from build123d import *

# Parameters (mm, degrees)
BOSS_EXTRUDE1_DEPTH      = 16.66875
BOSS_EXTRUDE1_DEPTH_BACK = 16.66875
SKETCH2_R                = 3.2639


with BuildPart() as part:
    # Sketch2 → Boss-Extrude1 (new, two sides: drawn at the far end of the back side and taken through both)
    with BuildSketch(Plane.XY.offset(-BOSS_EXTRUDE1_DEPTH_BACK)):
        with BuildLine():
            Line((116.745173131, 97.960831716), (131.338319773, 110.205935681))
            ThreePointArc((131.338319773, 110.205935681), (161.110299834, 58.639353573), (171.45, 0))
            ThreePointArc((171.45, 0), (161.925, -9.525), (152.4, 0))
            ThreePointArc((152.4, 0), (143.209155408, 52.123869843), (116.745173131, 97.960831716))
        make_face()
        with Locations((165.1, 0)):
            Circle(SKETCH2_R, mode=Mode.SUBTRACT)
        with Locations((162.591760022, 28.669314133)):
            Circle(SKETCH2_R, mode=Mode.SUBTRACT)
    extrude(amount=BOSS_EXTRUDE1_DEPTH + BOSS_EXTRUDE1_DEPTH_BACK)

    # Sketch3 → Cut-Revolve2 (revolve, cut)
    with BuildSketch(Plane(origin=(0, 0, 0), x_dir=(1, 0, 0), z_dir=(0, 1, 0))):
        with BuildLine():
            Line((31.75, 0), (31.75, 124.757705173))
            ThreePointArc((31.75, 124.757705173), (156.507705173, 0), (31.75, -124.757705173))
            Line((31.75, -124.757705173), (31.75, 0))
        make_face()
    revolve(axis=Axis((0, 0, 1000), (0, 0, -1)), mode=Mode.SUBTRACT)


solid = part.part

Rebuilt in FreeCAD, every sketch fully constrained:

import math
import FreeCAD as App
import Part
import Sketcher

V = App.Vector
Q = App.Units.Quantity

doc = App.newDocument("Part")
body = doc.addObject("PartDesign::Body", "Body")

sketch1 = body.newObject("Sketcher::SketchObject", "Sketch")
sketch1.AttachmentSupport = (doc.getObject("XY_Plane"), [""])
sketch1.MapMode = "FlatFace"
sketch1.addGeometry([
    Part.LineSegment(V(131.3, 110.2, 0), V(116.7, 98, 0)),
    Part.ArcOfCircle(Part.Circle(V(0, 0, 0), V(0, 0, 1), 152.4), math.radians(0), math.radians(40)),
    Part.ArcOfCircle(Part.Circle(V(161.9, 0, 0), V(0, 0, 1), 9.5), math.radians(180), math.radians(360)),
    Part.ArcOfCircle(Part.Circle(V(0, 0, 0), V(0, 0, 1), 171.4), math.radians(0), math.radians(40)),
    Part.Circle(V(165.1, 0, 0), V(0, 0, 1), 3.3),
    Part.Circle(V(162.6, 28.7, 0), V(0, 0, 1), 3.3),
], False)
sketch1.addConstraint([
    Sketcher.Constraint("Coincident", 0, 2, 1, 2),
    Sketcher.Constraint("Tangent", 1, 1, 2, 1),
    Sketcher.Constraint("Tangent", 2, 2, 3, 1),
    Sketcher.Constraint("Coincident", 3, 2, 0, 1),
    Sketcher.Constraint("Coincident", 1, 3, -1, 1),
    Sketcher.Constraint("Coincident", 3, 3, -1, 1),
    Sketcher.Constraint("Equal", 4, 5),
    Sketcher.Constraint("PointOnObject", 2, 3, -1),
    Sketcher.Constraint("PointOnObject", 4, 3, -1),
    Sketcher.Constraint("Radius", 1, Q("6 in")),
    Sketcher.Constraint("Radius", 3, Q("6.75 in")),
    Sketcher.Constraint("Diameter", 4, Q("0.257 in")),
    Sketcher.Constraint("Angle", 0, Q("-140 deg")),
    Sketcher.Constraint("DistanceX", -1, 1, 4, 3, Q("6.5 in")),
    Sketcher.Constraint("DistanceX", -1, 1, 3, 2, Q("5.1708 in")),
    Sketcher.Constraint("DistanceX", -1, 1, 5, 3, Q("162.59176 mm")),
    Sketcher.Constraint("DistanceY", 5, 3, 3, 2, Q("81.536622 mm")),
])
pad1 = body.newObject("PartDesign::Pad", "Pad")
pad1.Profile = sketch1
pad1.Type = "TwoLengths"
pad1.Length = Q("0.65625 in")
pad1.Length2 = Q("0.65625 in")

sketch2 = body.newObject("Sketcher::SketchObject", "Sketch001")
sketch2.AttachmentSupport = (doc.getObject("XZ_Plane"), [""])
sketch2.MapMode = "FlatFace"
sketch2.addGeometry([
    Part.ArcOfCircle(Part.Circle(V(32, 0, 0), V(0, 0, 1), 125), math.radians(-90), math.radians(90)),
    Part.LineSegment(V(32, -125, 0), V(32, 125, 0)),
], False)
sketch2.addConstraint([
    Sketcher.Constraint("Coincident", 0, 1, 1, 1),
    Sketcher.Constraint("Coincident", 1, 2, 0, 2),
    Sketcher.Constraint("Vertical", 1),
    Sketcher.Constraint("PointOnObject", 0, 3, -1),
    Sketcher.Constraint("DistanceX", -1, 1, 0, 3, Q("1.25 in")),
    Sketcher.Constraint("DistanceX", -1, 1, 0, 1, Q("1.25 in")),
    Sketcher.Constraint("Radius", 0, Q("124.757705 mm")),
])
groove = body.newObject("PartDesign::Groove", "Groove")
groove.Profile = sketch2
groove.ReferenceAxis = (sketch2, ["V_Axis"])
groove.Angle = 360

doc.recompute()
